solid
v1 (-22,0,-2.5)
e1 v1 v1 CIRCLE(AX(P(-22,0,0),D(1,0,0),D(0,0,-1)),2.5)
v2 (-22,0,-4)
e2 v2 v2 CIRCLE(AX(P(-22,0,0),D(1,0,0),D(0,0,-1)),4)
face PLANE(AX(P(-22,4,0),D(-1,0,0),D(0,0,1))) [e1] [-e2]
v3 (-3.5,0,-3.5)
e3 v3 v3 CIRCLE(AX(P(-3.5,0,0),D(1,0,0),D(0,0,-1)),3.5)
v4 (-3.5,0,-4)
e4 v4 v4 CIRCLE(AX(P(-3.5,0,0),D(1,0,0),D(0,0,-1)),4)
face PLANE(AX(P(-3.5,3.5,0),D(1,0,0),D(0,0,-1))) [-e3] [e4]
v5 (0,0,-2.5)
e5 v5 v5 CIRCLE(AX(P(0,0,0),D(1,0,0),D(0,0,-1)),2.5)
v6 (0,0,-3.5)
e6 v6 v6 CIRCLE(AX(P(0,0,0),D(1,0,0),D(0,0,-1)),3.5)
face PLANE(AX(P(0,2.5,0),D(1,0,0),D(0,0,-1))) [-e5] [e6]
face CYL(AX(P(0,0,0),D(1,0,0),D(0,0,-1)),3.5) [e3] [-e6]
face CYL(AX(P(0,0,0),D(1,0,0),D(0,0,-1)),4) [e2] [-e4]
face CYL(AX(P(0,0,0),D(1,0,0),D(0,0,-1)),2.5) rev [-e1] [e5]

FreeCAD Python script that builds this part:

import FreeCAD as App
import Part
import Sketcher

doc = App.newDocument("Part")
body = doc.addObject("PartDesign::Body", "Body")

# Sketch on XY plane
sketch1 = body.newObject("Sketcher::SketchObject", "Sketch")
sketch1.AttachmentSupport = (doc.getObject("XY_Plane"), [""])
sketch1.MapMode = "FlatFace"
sketch1.addGeometry([
    Part.LineSegment(App.Vector(0, 3.5, 0), App.Vector(-3.5, 3.5, 0)),  # 0
    Part.LineSegment(App.Vector(-3.5, 3.5, 0), App.Vector(-3.5, 4, 0)),  # 1
    Part.LineSegment(App.Vector(-3.5, 4, 0), App.Vector(-22, 4, 0)),  # 2
    Part.LineSegment(App.Vector(-22, 4, 0), App.Vector(-22, 2.5, 0)),  # 3
    Part.LineSegment(App.Vector(-22, 2.5, 0), App.Vector(0, 2.5, 0)),  # 4
    Part.LineSegment(App.Vector(0, 2.5, 0), App.Vector(0, 3.5, 0)),  # 5
], False)
sketch1.addConstraint([
    Sketcher.Constraint("Coincident", 0, 2, 1, 1),
    Sketcher.Constraint("Coincident", 1, 2, 2, 1),
    Sketcher.Constraint("Coincident", 2, 2, 3, 1),
    Sketcher.Constraint("Coincident", 3, 2, 4, 1),
    Sketcher.Constraint("Coincident", 4, 2, 5, 1),
    Sketcher.Constraint("Coincident", 5, 2, 0, 1),
    Sketcher.Constraint("Horizontal", 0),
    Sketcher.Constraint("Vertical", 1),
    Sketcher.Constraint("Horizontal", 2),
    Sketcher.Constraint("Vertical", 3),
    Sketcher.Constraint("Horizontal", 4),
    Sketcher.Constraint("Vertical", 5),
    Sketcher.Constraint("PointOnObject", 4, 2, -2),
    Sketcher.Constraint("DistanceX", 4, 1, 4, 2, 22.0),
    Sketcher.Constraint("DistanceY", 5, 1, 5, 2, 1.0),
    Sketcher.Constraint("DistanceX", 0, 2, 0, 1, 3.5),
    Sketcher.Constraint("DistanceY", 1, 1, 1, 2, 0.5),
    Sketcher.Constraint("DistanceY", -1, 1, 1, 2, 4.0),
])
revolution = body.newObject("PartDesign::Revolution", "Revolution")
revolution.Profile = sketch1
revolution.ReferenceAxis = (sketch1, ["H_Axis"])
revolution.Angle = 360

doc.recompute()
